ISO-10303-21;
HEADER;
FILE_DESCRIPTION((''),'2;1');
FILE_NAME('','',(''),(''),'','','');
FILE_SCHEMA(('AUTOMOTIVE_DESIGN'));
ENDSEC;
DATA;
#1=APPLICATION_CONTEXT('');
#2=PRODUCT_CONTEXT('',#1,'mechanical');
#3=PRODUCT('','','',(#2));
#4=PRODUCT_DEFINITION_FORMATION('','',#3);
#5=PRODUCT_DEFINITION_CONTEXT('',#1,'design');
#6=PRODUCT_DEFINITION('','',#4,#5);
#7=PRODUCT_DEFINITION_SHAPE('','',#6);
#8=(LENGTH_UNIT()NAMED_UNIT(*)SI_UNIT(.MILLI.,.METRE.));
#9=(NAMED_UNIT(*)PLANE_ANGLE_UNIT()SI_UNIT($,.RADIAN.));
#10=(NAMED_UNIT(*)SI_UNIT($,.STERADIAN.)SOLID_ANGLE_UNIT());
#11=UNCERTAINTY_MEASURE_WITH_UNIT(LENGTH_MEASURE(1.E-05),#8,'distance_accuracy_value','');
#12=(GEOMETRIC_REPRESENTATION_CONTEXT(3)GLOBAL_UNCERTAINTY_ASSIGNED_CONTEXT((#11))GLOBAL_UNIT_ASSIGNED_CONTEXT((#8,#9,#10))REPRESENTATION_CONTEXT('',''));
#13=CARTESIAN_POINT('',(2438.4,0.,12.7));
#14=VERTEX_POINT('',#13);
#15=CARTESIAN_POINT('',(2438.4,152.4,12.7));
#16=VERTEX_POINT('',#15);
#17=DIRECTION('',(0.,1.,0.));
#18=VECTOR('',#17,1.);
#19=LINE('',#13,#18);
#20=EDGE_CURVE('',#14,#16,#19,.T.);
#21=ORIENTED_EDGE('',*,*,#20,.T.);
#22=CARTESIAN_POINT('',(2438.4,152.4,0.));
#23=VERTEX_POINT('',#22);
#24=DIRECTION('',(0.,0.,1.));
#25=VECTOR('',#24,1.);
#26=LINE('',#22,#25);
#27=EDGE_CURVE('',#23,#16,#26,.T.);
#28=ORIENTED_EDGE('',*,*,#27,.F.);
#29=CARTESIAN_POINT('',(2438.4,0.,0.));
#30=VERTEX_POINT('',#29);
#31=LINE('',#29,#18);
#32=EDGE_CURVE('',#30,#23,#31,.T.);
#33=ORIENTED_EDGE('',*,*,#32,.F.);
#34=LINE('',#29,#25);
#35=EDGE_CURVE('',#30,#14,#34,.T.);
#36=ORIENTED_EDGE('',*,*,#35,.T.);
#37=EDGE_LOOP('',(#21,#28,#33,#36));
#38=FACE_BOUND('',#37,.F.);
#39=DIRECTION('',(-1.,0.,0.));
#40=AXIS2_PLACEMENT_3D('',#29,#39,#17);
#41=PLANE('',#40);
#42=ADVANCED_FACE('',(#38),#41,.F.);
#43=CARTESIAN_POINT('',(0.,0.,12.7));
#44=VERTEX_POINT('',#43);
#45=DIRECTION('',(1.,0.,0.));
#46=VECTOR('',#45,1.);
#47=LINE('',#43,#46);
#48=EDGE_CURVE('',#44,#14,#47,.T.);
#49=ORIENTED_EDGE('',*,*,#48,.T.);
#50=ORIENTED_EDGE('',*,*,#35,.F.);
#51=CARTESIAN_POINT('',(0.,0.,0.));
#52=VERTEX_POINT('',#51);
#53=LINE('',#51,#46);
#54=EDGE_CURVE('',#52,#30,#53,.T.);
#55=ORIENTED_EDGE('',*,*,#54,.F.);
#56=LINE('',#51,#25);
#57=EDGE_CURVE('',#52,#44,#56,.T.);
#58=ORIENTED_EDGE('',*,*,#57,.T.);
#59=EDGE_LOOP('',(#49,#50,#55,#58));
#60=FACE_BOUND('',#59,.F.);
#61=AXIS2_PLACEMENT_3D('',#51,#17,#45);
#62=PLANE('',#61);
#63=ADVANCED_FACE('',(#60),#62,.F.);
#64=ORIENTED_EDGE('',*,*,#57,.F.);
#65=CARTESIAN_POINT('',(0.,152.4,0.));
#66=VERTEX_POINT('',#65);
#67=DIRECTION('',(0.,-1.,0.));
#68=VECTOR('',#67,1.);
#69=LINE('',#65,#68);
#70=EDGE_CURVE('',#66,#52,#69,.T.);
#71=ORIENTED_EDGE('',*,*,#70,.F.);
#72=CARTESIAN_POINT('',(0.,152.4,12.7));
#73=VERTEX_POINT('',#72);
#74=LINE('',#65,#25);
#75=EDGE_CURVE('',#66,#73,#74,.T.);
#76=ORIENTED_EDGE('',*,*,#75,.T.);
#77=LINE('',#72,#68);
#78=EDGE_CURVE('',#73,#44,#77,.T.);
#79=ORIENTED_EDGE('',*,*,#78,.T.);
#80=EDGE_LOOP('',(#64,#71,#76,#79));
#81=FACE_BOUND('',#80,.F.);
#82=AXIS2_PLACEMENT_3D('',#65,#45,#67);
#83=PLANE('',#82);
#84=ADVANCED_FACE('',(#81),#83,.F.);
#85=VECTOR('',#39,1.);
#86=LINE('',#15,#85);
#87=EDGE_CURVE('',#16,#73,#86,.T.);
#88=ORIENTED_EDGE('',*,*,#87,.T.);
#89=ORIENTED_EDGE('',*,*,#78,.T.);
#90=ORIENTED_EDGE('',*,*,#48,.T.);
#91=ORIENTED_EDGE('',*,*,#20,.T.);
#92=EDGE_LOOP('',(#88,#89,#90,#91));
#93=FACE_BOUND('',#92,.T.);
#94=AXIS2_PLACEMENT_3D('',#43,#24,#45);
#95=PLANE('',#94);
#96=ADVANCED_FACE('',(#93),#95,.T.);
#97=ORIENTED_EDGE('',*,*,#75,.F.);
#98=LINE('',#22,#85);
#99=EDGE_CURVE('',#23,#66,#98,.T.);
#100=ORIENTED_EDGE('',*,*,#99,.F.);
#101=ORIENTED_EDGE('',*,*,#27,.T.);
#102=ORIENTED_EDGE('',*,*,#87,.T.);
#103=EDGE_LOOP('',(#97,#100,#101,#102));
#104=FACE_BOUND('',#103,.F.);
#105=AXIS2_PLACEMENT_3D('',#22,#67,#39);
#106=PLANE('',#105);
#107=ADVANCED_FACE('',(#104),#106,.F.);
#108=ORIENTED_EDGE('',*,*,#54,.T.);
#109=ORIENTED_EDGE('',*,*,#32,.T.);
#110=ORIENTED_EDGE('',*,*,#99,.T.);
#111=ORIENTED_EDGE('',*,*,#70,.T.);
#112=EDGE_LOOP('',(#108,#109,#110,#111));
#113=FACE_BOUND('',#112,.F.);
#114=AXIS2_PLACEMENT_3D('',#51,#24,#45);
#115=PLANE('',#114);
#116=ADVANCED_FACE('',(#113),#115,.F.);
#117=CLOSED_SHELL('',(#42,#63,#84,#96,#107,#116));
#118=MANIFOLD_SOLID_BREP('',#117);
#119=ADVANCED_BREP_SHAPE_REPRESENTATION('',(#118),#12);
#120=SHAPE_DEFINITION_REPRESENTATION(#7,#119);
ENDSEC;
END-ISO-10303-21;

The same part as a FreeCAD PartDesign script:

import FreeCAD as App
import Part
import Sketcher
from FreeCAD import Vector
Q = App.Units.Quantity


def add_polygon(sketch, points):
    """Adds a closed chain of lines whose ends are joined by coincident constraints."""
    first, n = sketch.GeometryCount, len(points)
    for a, b in zip(points, points[1:] + points[:1]):
        sketch.addGeometry(Part.LineSegment(App.Vector(*a, 0), App.Vector(*b, 0)), False)
    for i in range(n):
        sketch.addConstraint(Sketcher.Constraint("Coincident", first + i, 2, first + (i + 1) % n, 1))

doc = App.newDocument("Part")
body = doc.addObject("PartDesign::Body", "Body")

# Sketch on XY plane
sketch1 = body.newObject("Sketcher::SketchObject", "Sketch")
sketch1.AttachmentSupport = (doc.getObject("XY_Plane"), [""])
sketch1.MapMode = "FlatFace"
add_polygon(sketch1, [(0, 152), (0, 0), (2438, 0), (2438, 152)])  # lines 0-3
sketch1.addConstraint([
    Sketcher.Constraint("Vertical", 0),
    Sketcher.Constraint("Horizontal", 1),
    Sketcher.Constraint("Vertical", 2),
    Sketcher.Constraint("Horizontal", 3),
    Sketcher.Constraint("Coincident", 0, 2, -1, 1),
    Sketcher.Constraint("DistanceX", 1, 1, 1, 2, Q("96 in")),
    Sketcher.Constraint("DistanceY", 0, 2, 0, 1, Q("6 in")),
])
pad1 = body.newObject("PartDesign::Pad", "Pad")
pad1.Profile = sketch1
pad1.Length = Q("0.5 in")

doc.recompute()
